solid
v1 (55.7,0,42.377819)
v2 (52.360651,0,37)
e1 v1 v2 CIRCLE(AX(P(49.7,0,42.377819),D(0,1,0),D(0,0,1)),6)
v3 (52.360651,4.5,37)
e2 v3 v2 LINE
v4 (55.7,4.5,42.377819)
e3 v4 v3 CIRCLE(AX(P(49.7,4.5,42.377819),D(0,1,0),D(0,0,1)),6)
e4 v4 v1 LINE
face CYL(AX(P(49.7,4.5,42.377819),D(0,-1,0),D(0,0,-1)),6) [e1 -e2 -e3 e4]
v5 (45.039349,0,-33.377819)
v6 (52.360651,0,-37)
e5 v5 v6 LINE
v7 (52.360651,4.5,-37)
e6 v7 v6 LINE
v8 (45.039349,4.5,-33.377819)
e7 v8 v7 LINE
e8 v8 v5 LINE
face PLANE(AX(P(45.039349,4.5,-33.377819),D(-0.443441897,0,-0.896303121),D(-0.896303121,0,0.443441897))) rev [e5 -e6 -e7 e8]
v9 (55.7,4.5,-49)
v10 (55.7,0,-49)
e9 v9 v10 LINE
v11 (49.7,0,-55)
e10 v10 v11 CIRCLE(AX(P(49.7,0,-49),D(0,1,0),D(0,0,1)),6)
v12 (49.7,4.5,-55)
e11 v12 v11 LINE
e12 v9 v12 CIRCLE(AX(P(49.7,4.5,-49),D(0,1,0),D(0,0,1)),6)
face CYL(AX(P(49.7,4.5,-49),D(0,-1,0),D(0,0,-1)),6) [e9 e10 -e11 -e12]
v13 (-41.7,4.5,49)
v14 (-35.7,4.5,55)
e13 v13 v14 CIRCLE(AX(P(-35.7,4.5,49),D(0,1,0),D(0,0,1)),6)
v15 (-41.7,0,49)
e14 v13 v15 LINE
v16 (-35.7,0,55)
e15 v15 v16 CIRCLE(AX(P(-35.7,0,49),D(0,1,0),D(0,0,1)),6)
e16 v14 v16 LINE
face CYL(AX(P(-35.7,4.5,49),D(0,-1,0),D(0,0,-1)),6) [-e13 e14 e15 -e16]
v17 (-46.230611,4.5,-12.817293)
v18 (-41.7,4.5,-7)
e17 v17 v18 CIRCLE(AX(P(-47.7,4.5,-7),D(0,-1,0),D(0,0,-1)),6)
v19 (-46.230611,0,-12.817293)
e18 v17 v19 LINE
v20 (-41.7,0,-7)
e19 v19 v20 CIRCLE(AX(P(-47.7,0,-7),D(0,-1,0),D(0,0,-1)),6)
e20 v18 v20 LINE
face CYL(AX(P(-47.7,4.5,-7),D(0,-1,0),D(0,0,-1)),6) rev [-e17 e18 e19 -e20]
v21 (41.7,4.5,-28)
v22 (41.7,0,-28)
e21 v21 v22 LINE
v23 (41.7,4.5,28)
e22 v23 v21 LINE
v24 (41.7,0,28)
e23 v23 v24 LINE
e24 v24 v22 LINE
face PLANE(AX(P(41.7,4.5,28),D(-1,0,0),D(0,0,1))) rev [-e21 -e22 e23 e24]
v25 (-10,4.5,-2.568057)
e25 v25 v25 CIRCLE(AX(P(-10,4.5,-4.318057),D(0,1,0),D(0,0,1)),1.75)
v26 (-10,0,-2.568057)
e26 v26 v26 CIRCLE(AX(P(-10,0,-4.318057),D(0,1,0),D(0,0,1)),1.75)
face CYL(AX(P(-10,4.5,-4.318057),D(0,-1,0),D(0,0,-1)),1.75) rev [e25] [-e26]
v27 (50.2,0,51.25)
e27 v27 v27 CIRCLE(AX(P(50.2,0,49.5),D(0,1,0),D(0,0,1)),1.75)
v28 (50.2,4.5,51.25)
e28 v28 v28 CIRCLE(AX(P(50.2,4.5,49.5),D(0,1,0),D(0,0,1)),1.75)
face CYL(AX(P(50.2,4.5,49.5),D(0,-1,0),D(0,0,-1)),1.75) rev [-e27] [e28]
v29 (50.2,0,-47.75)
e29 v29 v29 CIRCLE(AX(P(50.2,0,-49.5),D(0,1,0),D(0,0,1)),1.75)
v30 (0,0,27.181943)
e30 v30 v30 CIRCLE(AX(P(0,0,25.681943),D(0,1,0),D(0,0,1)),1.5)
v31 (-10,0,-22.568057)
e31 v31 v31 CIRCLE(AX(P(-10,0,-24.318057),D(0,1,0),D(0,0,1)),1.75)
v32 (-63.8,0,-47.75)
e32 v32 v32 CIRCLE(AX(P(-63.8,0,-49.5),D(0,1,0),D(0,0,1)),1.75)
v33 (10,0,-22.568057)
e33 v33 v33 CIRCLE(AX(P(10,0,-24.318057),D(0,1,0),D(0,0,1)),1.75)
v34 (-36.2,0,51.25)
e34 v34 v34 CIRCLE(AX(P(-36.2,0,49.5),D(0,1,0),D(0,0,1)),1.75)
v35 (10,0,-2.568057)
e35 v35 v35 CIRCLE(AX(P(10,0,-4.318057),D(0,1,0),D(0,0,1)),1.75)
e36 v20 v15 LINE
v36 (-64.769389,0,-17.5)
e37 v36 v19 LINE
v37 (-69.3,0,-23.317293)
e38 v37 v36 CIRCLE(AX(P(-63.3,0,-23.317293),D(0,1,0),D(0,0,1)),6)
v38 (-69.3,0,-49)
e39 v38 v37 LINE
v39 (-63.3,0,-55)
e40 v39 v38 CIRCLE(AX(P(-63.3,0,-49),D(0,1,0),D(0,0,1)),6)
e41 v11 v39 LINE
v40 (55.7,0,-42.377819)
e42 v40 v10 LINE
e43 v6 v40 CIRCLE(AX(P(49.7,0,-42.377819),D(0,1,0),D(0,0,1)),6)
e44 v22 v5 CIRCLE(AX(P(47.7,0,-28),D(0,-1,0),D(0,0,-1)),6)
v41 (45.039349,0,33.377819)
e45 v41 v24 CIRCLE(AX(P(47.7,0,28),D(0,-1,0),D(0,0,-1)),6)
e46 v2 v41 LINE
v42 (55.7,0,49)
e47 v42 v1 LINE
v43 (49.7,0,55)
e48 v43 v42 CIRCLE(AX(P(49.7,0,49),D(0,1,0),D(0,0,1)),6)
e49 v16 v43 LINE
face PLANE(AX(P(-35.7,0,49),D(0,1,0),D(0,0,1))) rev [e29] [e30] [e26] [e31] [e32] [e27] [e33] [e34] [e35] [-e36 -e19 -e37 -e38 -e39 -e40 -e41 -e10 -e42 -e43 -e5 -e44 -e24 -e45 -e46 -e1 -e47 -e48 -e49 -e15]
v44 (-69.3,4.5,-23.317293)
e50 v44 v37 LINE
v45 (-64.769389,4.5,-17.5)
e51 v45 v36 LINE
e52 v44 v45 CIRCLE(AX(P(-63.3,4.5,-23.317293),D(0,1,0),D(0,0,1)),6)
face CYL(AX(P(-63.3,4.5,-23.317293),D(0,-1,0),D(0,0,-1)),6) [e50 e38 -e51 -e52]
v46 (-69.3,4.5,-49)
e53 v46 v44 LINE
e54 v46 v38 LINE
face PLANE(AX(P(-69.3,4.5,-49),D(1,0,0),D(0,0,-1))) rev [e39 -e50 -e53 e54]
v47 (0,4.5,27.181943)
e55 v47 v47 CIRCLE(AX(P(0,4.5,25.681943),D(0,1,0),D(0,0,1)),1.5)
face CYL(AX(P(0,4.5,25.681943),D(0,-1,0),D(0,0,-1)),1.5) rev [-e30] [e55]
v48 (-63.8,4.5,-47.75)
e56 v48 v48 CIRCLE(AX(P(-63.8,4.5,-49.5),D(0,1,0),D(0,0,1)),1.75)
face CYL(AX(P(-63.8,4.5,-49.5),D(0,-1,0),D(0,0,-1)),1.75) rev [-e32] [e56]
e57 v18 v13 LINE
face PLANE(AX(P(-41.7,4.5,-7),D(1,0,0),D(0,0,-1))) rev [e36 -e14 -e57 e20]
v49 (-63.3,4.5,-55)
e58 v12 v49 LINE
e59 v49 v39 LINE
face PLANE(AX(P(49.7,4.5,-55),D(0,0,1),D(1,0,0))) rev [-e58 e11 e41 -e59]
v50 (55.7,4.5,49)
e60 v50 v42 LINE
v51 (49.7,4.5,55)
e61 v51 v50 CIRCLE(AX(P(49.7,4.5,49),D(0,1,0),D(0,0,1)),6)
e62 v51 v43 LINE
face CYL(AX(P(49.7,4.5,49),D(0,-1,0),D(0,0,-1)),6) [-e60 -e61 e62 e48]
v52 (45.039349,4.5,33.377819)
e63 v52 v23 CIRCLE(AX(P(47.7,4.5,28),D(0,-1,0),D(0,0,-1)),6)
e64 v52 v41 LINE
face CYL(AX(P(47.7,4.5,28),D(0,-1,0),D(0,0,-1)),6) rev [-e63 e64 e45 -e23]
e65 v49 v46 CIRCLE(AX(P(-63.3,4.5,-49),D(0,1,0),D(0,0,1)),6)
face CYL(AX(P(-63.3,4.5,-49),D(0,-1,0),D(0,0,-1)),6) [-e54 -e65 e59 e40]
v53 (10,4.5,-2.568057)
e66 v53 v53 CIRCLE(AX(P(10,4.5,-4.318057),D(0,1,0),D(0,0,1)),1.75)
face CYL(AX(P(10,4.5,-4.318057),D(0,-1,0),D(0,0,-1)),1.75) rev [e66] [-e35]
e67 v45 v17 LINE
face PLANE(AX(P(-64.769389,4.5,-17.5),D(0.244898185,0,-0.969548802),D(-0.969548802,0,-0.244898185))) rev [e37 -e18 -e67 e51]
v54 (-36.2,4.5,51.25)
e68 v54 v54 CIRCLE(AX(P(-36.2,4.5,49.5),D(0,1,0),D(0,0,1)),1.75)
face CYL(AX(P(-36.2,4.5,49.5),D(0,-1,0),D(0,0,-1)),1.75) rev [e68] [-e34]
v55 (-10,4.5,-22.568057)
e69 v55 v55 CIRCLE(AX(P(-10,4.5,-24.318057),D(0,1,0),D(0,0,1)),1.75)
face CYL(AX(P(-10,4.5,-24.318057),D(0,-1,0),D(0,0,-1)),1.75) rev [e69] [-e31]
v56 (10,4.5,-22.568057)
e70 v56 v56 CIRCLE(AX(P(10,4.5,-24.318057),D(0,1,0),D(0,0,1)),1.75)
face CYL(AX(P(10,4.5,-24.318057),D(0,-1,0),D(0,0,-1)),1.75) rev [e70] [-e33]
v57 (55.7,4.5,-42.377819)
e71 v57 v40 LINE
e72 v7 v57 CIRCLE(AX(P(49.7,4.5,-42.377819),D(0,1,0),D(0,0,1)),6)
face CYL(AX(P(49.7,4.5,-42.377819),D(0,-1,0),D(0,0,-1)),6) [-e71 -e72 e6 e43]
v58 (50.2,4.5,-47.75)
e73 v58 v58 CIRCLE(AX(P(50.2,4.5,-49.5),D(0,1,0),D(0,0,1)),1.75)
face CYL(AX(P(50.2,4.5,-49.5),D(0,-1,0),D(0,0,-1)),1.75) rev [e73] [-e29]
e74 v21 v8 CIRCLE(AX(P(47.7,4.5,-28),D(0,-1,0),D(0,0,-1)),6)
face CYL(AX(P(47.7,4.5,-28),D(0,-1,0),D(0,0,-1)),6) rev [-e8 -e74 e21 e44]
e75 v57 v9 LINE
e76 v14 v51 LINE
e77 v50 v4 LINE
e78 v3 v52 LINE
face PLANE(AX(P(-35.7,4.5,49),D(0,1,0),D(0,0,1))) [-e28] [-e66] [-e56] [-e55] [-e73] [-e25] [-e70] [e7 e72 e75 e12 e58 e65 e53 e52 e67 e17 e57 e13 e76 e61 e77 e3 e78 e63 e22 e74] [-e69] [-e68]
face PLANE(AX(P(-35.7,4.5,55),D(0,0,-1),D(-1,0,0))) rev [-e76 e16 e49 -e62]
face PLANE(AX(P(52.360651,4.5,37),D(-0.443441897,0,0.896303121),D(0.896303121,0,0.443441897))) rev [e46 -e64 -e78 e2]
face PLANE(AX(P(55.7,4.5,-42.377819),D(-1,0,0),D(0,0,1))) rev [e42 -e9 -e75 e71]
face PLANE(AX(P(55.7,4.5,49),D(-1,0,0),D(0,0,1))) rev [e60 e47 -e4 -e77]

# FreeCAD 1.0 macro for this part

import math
import FreeCAD as App
import Part
import Sketcher
from FreeCAD import Vector

doc = App.newDocument("Part")
body = doc.addObject("PartDesign::Body", "Body")

sketch1 = doc.addObject("Sketcher::SketchObject", "Sketch")
body.addObject(sketch1)
sketch1.AttachmentSupport = (doc.XZ_Plane, [""])
sketch1.MapMode = "FlatFace"
sketch1.addGeometry(Part.LineSegment(Vector(-35.7, 55, 0), Vector(49.7, 55, 0)), False)
sketch1.addGeometry(Part.ArcOfCircle(Part.Circle(Vector(49.7, 49, 0), Vector(0, 0, 1), 6), math.radians(0), math.radians(90)), False)
sketch1.addGeometry(Part.LineSegment(Vector(55.7, 49, 0), Vector(55.7, 42.4, 0)), False)
sketch1.addGeometry(Part.ArcOfCircle(Part.Circle(Vector(49.7, 42.4, 0), Vector(0, 0, 1), 6), math.radians(-64), math.radians(0)), False)
sketch1.addGeometry(Part.LineSegment(Vector(52.4, 37, 0), Vector(45, 33.4, 0)), False)
sketch1.addGeometry(Part.ArcOfCircle(Part.Circle(Vector(47.7, 28, 0), Vector(0, 0, 1), 6), math.radians(116), math.radians(180)), False)
sketch1.addGeometry(Part.LineSegment(Vector(41.7, 28, 0), Vector(41.7, -28, 0)), False)
sketch1.addGeometry(Part.ArcOfCircle(Part.Circle(Vector(47.7, -28, 0), Vector(0, 0, 1), 6), math.radians(-180), math.radians(-116)), False)
sketch1.addGeometry(Part.LineSegment(Vector(45, -33.4, 0), Vector(52.4, -37, 0)), False)
sketch1.addGeometry(Part.ArcOfCircle(Part.Circle(Vector(49.7, -42.4, 0), Vector(0, 0, 1), 6), math.radians(0), math.radians(64)), False)
sketch1.addGeometry(Part.LineSegment(Vector(55.7, -42.4, 0), Vector(55.7, -49, 0)), False)
sketch1.addGeometry(Part.ArcOfCircle(Part.Circle(Vector(49.7, -49, 0), Vector(0, 0, 1), 6), math.radians(-90), math.radians(0)), False)
sketch1.addGeometry(Part.LineSegment(Vector(49.7, -55, 0), Vector(-63.3, -55, 0)), False)
sketch1.addGeometry(Part.ArcOfCircle(Part.Circle(Vector(-63.3, -49, 0), Vector(0, 0, 1), 6), math.radians(180), math.radians(270)), False)
sketch1.addGeometry(Part.LineSegment(Vector(-69.3, -49, 0), Vector(-69.3, -23.3, 0)), False)
sketch1.addGeometry(Part.ArcOfCircle(Part.Circle(Vector(-63.3, -23.3, 0), Vector(0, 0, 1), 6), math.radians(104), math.radians(180)), False)
sketch1.addGeometry(Part.LineSegment(Vector(-64.8, -17.5, 0), Vector(-46.2, -12.8, 0)), False)
sketch1.addGeometry(Part.ArcOfCircle(Part.Circle(Vector(-47.7, -7, 0), Vector(0, 0, 1), 6), math.radians(-76), math.radians(0)), False)
sketch1.addGeometry(Part.LineSegment(Vector(-41.7, -7, 0), Vector(-41.7, 49, 0)), False)
sketch1.addGeometry(Part.ArcOfCircle(Part.Circle(Vector(-35.7, 49, 0), Vector(0, 0, 1), 6), math.radians(90), math.radians(180)), False)
sketch1.addGeometry(Part.Circle(Vector(-36.2, 49.5, 0), Vector(0, 0, 1), 1.8), False)
sketch1.addGeometry(Part.Circle(Vector(0, 25.7, 0), Vector(0, 0, 1), 1.5), False)
sketch1.addGeometry(Part.Circle(Vector(50.2, 49.5, 0), Vector(0, 0, 1), 1.8), False)
sketch1.addGeometry(Part.Circle(Vector(-10, -4.3, 0), Vector(0, 0, 1), 1.8), False)
sketch1.addGeometry(Part.Circle(Vector(-10, -24.3, 0), Vector(0, 0, 1), 1.8), False)
sketch1.addGeometry(Part.Circle(Vector(-63.8, -49.5, 0), Vector(0, 0, 1), 1.8), False)
sketch1.addGeometry(Part.Circle(Vector(10, -4.3, 0), Vector(0, 0, 1), 1.8), False)
sketch1.addGeometry(Part.Circle(Vector(10, -24.3, 0), Vector(0, 0, 1), 1.8), False)
sketch1.addGeometry(Part.Circle(Vector(50.2, -49.5, 0), Vector(0, 0, 1), 1.8), False)
sketch1.addConstraint(Sketcher.Constraint("Tangent", 0, 2, 1, 2))
sketch1.addConstraint(Sketcher.Constraint("Tangent", 1, 1, 2, 1))
sketch1.addConstraint(Sketcher.Constraint("Tangent", 2, 2, 3, 2))
sketch1.addConstraint(Sketcher.Constraint("Tangent", 3, 1, 4, 1))
sketch1.addConstraint(Sketcher.Constraint("Tangent", 4, 2, 5, 1))
sketch1.addConstraint(Sketcher.Constraint("Tangent", 5, 2, 6, 1))
sketch1.addConstraint(Sketcher.Constraint("Tangent", 6, 2, 7, 1))
sketch1.addConstraint(Sketcher.Constraint("Tangent", 7, 2, 8, 1))
sketch1.addConstraint(Sketcher.Constraint("Tangent", 8, 2, 9, 2))
sketch1.addConstraint(Sketcher.Constraint("Tangent", 9, 1, 10, 1))
sketch1.addConstraint(Sketcher.Constraint("Tangent", 10, 2, 11, 2))
sketch1.addConstraint(Sketcher.Constraint("Tangent", 11, 1, 12, 1))
sketch1.addConstraint(Sketcher.Constraint("Tangent", 12, 2, 13, 2))
sketch1.addConstraint(Sketcher.Constraint("Tangent", 13, 1, 14, 1))
sketch1.addConstraint(Sketcher.Constraint("Tangent", 14, 2, 15, 2))
sketch1.addConstraint(Sketcher.Constraint("Tangent", 15, 1, 16, 1))
sketch1.addConstraint(Sketcher.Constraint("Tangent", 16, 2, 17, 1))
sketch1.addConstraint(Sketcher.Constraint("Tangent", 17, 2, 18, 1))
sketch1.addConstraint(Sketcher.Constraint("Tangent", 18, 2, 19, 2))
sketch1.addConstraint(Sketcher.Constraint("Tangent", 19, 1, 0, 1))
sketch1.addConstraint(Sketcher.Constraint("Horizontal", 0))
sketch1.addConstraint(Sketcher.Constraint("Vertical", 2))
sketch1.addConstraint(Sketcher.Constraint("Vertical", 6))
sketch1.addConstraint(Sketcher.Constraint("Vertical", 10))
sketch1.addConstraint(Sketcher.Constraint("Horizontal", 12))
sketch1.addConstraint(Sketcher.Constraint("Vertical", 14))
sketch1.addConstraint(Sketcher.Constraint("Vertical", 18))
sketch1.addConstraint(Sketcher.Constraint("Equal", 1, 3))
sketch1.addConstraint(Sketcher.Constraint("Equal", 3, 5))
sketch1.addConstraint(Sketcher.Constraint("Equal", 5, 7))
sketch1.addConstraint(Sketcher.Constraint("Equal", 7, 9))
sketch1.addConstraint(Sketcher.Constraint("Equal", 9, 11))
sketch1.addConstraint(Sketcher.Constraint("Equal", 11, 13))
sketch1.addConstraint(Sketcher.Constraint("Equal", 13, 15))
sketch1.addConstraint(Sketcher.Constraint("Equal", 15, 17))
sketch1.addConstraint(Sketcher.Constraint("Equal", 17, 19))
sketch1.addConstraint(Sketcher.Constraint("Equal", 20, 22))
sketch1.addConstraint(Sketcher.Constraint("Equal", 22, 23))
sketch1.addConstraint(Sketcher.Constraint("Equal", 23, 24))
sketch1.addConstraint(Sketcher.Constraint("Equal", 24, 25))
sketch1.addConstraint(Sketcher.Constraint("Equal", 25, 26))
sketch1.addConstraint(Sketcher.Constraint("Equal", 26, 27))
sketch1.addConstraint(Sketcher.Constraint("Equal", 27, 28))
sketch1.addConstraint(Sketcher.Constraint("Symmetric", 23, 3, 26, 3, -2))
sketch1.addConstraint(Sketcher.Constraint("Symmetric", 24, 3, 27, 3, -2))
sketch1.addConstraint(Sketcher.Constraint("Symmetric", 3, 3, 9, 3, -1))
sketch1.addConstraint(Sketcher.Constraint("Symmetric", 22, 3, 28, 3, -1))
sketch1.addConstraint(Sketcher.Constraint("PointOnObject", 21, 3, -2))
sketch1.addConstraint(Sketcher.Constraint("Horizontal", 20, 3, 22, 3))
sketch1.addConstraint(Sketcher.Constraint("Horizontal", 25, 3, 28, 3))
sketch1.addConstraint(Sketcher.Constraint("Vertical", 23, 3, 24, 3))
sketch1.addConstraint(Sketcher.Constraint("Vertical", 4, 2, 7, 2))
sketch1.addConstraint(Sketcher.Constraint("Equal", 2, 10))
sketch1.addConstraint(Sketcher.Constraint("Equal", 6, 18))
sketch1.addConstraint(Sketcher.Constraint("Diameter", 21, 3.0))
sketch1.addConstraint(Sketcher.Constraint("Radius", 1, 6.0))
sketch1.addConstraint(Sketcher.Constraint("Diameter", 20, 3.5))
sketch1.addConstraint(Sketcher.Constraint("DistanceX", 12, 2, 12, 1, 113.0))
sketch1.addConstraint(Sketcher.Constraint("DistanceY", 6, 2, 6, 1, 56.0))
sketch1.addConstraint(Sketcher.Constraint("DistanceX", 0, 1, 0, 2, 85.4))
sketch1.addConstraint(Sketcher.Constraint("DistanceY", -1, 1, 1, 3, 49.0))
sketch1.addConstraint(Sketcher.Constraint("DistanceX", 23, 3, -1, 1, 10.0))
sketch1.addConstraint(Sketcher.Constraint("DistanceY", -1, 1, 3, 1, 37.0))
sketch1.addConstraint(Sketcher.Constraint("DistanceX", 5, 3, 3, 3, 2.0))
sketch1.addConstraint(Sketcher.Constraint("DistanceY", 23, 3, 21, 3, 30.0))
sketch1.addConstraint(Sketcher.Constraint("DistanceY", 24, 3, 23, 3, 20.0))
sketch1.addConstraint(Sketcher.Constraint("DistanceX", -1, 1, 1, 3, 49.7))
sketch1.addConstraint(Sketcher.Constraint("DistanceX", 20, 3, -1, 1, 36.2))
sketch1.addConstraint(Sketcher.Constraint("DistanceY", -1, 1, 20, 3, 49.5))
sketch1.addConstraint(Sketcher.Constraint("DistanceX", -1, 1, 22, 3, 50.2))
sketch1.addConstraint(Sketcher.Constraint("DistanceX", 25, 3, -1, 1, 63.8))
sketch1.addConstraint(Sketcher.Constraint("DistanceY", 15, 1, -1, 1, 17.5))
sketch1.addConstraint(Sketcher.Constraint("DistanceY", 9, 3, 27, 3, 18.059761))
pad1 = doc.addObject("PartDesign::Pad", "Pad")
body.addObject(pad1)
pad1.Profile = sketch1
pad1.Length = 4.5
pad1.Reversed = True

doc.recompute()
